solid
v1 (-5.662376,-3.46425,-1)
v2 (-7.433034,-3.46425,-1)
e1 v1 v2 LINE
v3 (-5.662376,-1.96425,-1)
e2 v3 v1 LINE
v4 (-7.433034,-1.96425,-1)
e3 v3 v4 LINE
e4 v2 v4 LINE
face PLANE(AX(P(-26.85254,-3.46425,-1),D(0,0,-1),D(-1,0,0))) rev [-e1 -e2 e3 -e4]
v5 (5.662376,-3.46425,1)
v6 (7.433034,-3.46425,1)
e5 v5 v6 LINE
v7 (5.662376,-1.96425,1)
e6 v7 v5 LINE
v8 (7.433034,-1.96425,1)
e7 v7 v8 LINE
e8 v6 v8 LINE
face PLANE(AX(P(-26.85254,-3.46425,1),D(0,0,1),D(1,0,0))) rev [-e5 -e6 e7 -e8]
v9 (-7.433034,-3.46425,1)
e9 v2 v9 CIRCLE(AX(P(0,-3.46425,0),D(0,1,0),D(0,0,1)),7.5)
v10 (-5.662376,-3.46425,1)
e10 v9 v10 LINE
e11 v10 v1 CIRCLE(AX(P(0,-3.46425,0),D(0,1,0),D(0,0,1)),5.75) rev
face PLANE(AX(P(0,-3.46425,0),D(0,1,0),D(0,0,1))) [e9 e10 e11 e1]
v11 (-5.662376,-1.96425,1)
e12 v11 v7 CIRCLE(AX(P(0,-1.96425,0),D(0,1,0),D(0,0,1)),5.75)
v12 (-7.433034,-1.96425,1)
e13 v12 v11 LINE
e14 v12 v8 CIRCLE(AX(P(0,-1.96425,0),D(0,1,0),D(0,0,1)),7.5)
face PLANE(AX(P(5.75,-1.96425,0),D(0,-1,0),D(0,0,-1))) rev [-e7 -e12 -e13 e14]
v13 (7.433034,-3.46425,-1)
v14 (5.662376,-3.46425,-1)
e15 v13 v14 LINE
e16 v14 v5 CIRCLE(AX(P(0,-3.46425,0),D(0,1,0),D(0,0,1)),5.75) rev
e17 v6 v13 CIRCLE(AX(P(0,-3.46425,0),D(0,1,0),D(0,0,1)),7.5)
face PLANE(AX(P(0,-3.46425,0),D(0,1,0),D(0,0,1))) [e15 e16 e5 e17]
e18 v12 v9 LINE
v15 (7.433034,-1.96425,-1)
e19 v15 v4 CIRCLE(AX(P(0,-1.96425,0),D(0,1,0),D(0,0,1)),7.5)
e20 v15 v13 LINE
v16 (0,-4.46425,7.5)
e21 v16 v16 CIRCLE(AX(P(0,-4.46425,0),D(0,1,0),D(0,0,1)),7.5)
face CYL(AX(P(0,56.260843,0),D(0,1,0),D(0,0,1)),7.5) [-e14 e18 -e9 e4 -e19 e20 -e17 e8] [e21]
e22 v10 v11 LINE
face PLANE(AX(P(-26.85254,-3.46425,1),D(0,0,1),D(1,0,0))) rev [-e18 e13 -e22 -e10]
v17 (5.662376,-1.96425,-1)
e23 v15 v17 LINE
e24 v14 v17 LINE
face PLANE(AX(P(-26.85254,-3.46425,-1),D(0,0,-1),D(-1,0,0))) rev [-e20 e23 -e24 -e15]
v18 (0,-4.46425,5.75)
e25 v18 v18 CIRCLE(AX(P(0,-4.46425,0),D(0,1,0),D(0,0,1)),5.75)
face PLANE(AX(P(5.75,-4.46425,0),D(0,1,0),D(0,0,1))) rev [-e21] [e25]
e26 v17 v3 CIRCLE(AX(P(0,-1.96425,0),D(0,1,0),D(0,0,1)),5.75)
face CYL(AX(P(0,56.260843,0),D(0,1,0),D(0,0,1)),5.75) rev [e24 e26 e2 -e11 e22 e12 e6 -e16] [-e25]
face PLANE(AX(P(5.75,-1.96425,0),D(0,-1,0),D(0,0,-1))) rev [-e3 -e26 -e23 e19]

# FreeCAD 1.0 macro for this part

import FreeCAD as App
import Part
import Sketcher
from FreeCAD import Vector


def add_polygon(sketch, points):
    """Adds a closed chain of lines whose ends are joined by coincident constraints."""
    first, n = sketch.GeometryCount, len(points)
    for a, b in zip(points, points[1:] + points[:1]):
        sketch.addGeometry(Part.LineSegment(App.Vector(*a, 0), App.Vector(*b, 0)), False)
    for i in range(n):
        sketch.addConstraint(Sketcher.Constraint("Coincident", first + i, 2, first + (i + 1) % n, 1))

doc = App.newDocument("Part")
body = doc.addObject("PartDesign::Body", "Body")

# Sketch on XY plane
sketch1 = body.newObject("Sketcher::SketchObject", "Sketch")
sketch1.AttachmentSupport = (doc.getObject("XY_Plane"), [""])
sketch1.MapMode = "FlatFace"
add_polygon(sketch1, [(5.8, -2), (5.8, -4.5), (7.5, -4.5), (7.5, -2)])  # lines 0-3
sketch1.addConstraint(Sketcher.Constraint("Vertical", 0))
sketch1.addConstraint(Sketcher.Constraint("Horizontal", 1))
sketch1.addConstraint(Sketcher.Constraint("Vertical", 2))
sketch1.addConstraint(Sketcher.Constraint("Horizontal", 3))
sketch1.addConstraint(Sketcher.Constraint("DistanceY", 0, 2, 0, 1, 2.5))
sketch1.addConstraint(Sketcher.Constraint("DistanceX", 1, 1, 1, 2, 1.75))
sketch1.addConstraint(Sketcher.Constraint("DistanceX", -1, 1, 1, 2, 7.5))
sketch1.addConstraint(Sketcher.Constraint("DistanceY", 0, 2, -1, 1, 4.46425))
revolution = body.newObject("PartDesign::Revolution", "Revolution")
revolution.Profile = sketch1
revolution.ReferenceAxis = (sketch1, ["V_Axis"])
revolution.Angle = 360

# Sketch on XZ plane
sketch2 = body.newObject("Sketcher::SketchObject", "Sketch001")
sketch2.AttachmentSupport = (doc.getObject("XZ_Plane"), [""])
sketch2.MapMode = "FlatFace"
sketch2.AttachmentOffset = App.Placement(Vector(0, 0, 1.96425), App.Rotation())
add_polygon(sketch2, [(-26.9, -1), (-26.9, 1), (26.9, 1), (26.9, -1)])  # lines 0-3
sketch2.addConstraint(Sketcher.Constraint("Vertical", 0))
sketch2.addConstraint(Sketcher.Constraint("Horizontal", 1))
sketch2.addConstraint(Sketcher.Constraint("Vertical", 2))
sketch2.addConstraint(Sketcher.Constraint("Horizontal", 3))
sketch2.addConstraint(Sketcher.Constraint("Symmetric", 0, 2, 2, 2, -1, 1))
sketch2.addConstraint(Sketcher.Constraint("DistanceY", 0, 1, 0, 2, 2.0))
sketch2.addConstraint(Sketcher.Constraint("DistanceX", 1, 1, 1, 2, 53.705081))
pocket1 = body.newObject("PartDesign::Pocket", "Pocket")
pocket1.Profile = sketch2
pocket1.Length = 1.5
pocket1.Reversed = True

doc.recompute()
